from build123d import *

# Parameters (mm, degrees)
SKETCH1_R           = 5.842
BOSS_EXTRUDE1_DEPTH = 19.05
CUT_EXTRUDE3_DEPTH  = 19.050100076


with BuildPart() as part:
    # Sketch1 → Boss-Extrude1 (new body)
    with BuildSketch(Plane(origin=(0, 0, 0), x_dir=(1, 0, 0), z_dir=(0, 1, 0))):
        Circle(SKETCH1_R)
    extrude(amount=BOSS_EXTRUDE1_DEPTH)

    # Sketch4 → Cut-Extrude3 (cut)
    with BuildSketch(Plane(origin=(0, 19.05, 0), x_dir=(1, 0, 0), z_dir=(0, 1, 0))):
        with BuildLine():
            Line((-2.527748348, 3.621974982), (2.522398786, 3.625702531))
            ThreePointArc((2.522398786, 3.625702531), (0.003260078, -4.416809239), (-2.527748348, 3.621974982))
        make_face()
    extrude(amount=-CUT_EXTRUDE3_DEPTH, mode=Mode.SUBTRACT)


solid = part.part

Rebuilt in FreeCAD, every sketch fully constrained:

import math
import FreeCAD as App
import Part
import Sketcher
Q = App.Units.Quantity

doc = App.newDocument("Part")
params = doc.addObject("Spreadsheet::Sheet", "Params")
for row, (alias, value) in enumerate([
    ("sketch1_diameter", "0.46 in"),
    ("pad1_length", "0.75 in"),
    ("pocket1_length", "19.0501 mm"),
], start=1):
    params.set(f"A{row}", alias)
    params.set(f"B{row}", "=" + value)
    params.setAlias(f"B{row}", alias)

body = doc.addObject("PartDesign::Body", "Body")

# Sketch on XZ plane
sketch1 = body.newObject("Sketcher::SketchObject", "Sketch")
sketch1.AttachmentSupport = (doc.getObject("XZ_Plane"), [""])
sketch1.MapMode = "FlatFace"
sketch1.addGeometry(Part.Circle(App.Vector(0, 0, 0), App.Vector(0, 0, 1), 6), False)
sketch1.addConstraint(Sketcher.Constraint("Coincident", 0, 3, -1, 1))
sketch1.addConstraint(Sketcher.Constraint("Diameter", 0, Q("0.46 in")))
sketch1.setExpression("Constraints[1]", "Params.sketch1_diameter")
pad1 = body.newObject("PartDesign::Pad", "Pad")
pad1.Profile = sketch1
pad1.setExpression("Length", "Params.pad1_length")
pad1.Reversed = True

# Sketch on XZ plane
sketch2 = body.newObject("Sketcher::SketchObject", "Sketch001")
sketch2.AttachmentSupport = (doc.getObject("XZ_Plane"), [""])
sketch2.MapMode = "FlatFace"
sketch2.AttachmentOffset = App.Placement(App.Vector(0, 0, -0.75 * 25.4), App.Rotation())
sketch2.addGeometry(Part.LineSegment(App.Vector(2.5, -3.6, 0), App.Vector(-2.5, -3.6, 0)), False)
sketch2.addGeometry(Part.ArcOfCircle(Part.Circle(App.Vector(0, 0, 0), App.Vector(0, 0, 1), 4.4), math.radians(-55), math.radians(235)), False)
sketch2.addConstraint(Sketcher.Constraint("Coincident", 0, 1, 1, 1))
sketch2.addConstraint(Sketcher.Constraint("Coincident", 1, 2, 0, 2))
sketch2.addConstraint(Sketcher.Constraint("Coincident", 1, 3, -1, 1))
sketch2.addConstraint(Sketcher.Constraint("Radius", 1, 4.41681))
sketch2.addConstraint(Sketcher.Constraint("DistanceX", -1, 1, 0, 1, 2.522399))
sketch2.addConstraint(Sketcher.Constraint("Distance", 0, 5.050149))
pocket1 = body.newObject("PartDesign::Pocket", "Pocket")
pocket1.Profile = sketch2
pocket1.setExpression("Length", "Params.pocket1_length")
pocket1.Reversed = True

doc.recompute()
